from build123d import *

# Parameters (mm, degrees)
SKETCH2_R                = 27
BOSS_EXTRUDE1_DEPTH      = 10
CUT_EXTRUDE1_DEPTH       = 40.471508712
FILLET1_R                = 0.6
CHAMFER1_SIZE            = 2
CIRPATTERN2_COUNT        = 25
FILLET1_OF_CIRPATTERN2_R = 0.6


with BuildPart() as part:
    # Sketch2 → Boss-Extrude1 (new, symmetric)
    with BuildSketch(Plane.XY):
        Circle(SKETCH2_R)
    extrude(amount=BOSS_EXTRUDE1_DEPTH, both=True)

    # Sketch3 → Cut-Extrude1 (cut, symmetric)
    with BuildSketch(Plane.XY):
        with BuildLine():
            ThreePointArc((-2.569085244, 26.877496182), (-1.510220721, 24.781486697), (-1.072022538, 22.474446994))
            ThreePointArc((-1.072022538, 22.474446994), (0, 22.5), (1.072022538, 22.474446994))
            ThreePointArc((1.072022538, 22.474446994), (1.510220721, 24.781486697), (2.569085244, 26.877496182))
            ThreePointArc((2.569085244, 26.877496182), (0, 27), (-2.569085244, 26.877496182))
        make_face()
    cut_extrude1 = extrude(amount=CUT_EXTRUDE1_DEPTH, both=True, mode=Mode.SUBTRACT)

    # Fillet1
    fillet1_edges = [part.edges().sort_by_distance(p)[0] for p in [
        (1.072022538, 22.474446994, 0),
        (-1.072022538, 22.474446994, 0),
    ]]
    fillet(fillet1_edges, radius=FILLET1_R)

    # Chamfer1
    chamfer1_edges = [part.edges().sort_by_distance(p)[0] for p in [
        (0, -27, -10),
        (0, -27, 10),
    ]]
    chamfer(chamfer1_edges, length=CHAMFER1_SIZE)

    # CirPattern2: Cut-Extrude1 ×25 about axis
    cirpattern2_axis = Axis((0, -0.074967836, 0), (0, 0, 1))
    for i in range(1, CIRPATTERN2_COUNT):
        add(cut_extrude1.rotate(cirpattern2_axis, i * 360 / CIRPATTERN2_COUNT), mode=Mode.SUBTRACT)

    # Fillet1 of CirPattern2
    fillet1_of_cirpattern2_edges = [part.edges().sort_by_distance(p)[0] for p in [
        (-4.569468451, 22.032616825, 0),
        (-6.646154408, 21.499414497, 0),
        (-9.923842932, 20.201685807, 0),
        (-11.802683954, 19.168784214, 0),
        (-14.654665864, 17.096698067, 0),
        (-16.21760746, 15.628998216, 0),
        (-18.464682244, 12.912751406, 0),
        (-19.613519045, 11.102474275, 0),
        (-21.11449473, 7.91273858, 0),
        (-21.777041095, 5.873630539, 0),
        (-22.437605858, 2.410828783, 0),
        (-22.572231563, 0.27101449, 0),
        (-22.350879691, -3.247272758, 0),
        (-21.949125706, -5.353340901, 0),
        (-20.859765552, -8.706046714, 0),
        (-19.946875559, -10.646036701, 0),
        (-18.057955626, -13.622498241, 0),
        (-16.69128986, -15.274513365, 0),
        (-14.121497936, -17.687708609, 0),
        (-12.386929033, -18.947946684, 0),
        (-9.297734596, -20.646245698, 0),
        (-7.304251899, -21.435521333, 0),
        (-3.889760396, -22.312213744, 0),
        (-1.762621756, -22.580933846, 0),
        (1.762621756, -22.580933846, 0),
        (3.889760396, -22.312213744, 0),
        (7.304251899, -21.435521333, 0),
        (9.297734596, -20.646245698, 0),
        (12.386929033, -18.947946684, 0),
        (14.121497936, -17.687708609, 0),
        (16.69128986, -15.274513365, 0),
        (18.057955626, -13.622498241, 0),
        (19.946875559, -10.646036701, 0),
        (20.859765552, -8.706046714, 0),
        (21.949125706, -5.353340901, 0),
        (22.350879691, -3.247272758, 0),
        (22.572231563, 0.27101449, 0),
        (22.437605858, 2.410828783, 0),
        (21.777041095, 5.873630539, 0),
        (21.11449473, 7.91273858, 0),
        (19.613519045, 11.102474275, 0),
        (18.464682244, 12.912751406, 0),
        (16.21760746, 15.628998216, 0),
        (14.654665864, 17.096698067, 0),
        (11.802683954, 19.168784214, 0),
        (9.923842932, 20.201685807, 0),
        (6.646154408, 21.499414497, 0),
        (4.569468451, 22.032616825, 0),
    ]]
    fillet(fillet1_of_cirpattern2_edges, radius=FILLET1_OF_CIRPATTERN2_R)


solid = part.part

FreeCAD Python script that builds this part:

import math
import FreeCAD as App
import Part
import Sketcher
Q = App.Units.Quantity


def edges_at(feature, points):
    """Names of the edges that pass closest to the given points."""
    edges = feature.Shape.Edges
    near = lambda p: min(range(len(edges)), key=lambda i: edges[i].distToShape(Part.Vertex(*p))[0])
    return sorted({f"Edge{near(p) + 1}" for p in points})

doc = App.newDocument("Part")
body = doc.addObject("PartDesign::Body", "Body")

sketch1 = doc.addObject("Sketcher::SketchObject", "Sketch")
body.addObject(sketch1)
sketch1.AttachmentSupport = (doc.XY_Plane, [""])
sketch1.MapMode = "FlatFace"
sketch1.addGeometry(Part.Circle(App.Vector(0, 0, 0), App.Vector(0, 0, 1), 27), False)
sketch1.addConstraint(Sketcher.Constraint("Coincident", 0, 3, -1, 1))
sketch1.addConstraint(Sketcher.Constraint("Diameter", 0, Q("54 mm")))
pad1 = doc.addObject("PartDesign::Pad", "Pad")
body.addObject(pad1)
pad1.Profile = sketch1
pad1.Length = 20
pad1.Midplane = True

sketch2 = doc.addObject("Sketcher::SketchObject", "Sketch001")
body.addObject(sketch2)
sketch2.AttachmentSupport = (doc.XY_Plane, [""])
sketch2.MapMode = "FlatFace"
sketch2.addGeometry(Part.ArcOfCircle(Part.Circle(App.Vector(-9.47427, 22.073663, 0), App.Vector(0, 0, 1), 8.4118), math.radians(2.730917), math.radians(34.825756)), False)
sketch2.addGeometry(Part.ArcOfCircle(Part.Circle(App.Vector(0, 0, 0), App.Vector(0, 0, 1), 22.5), math.radians(87.269083), math.radians(92.730917)), False)
sketch2.addGeometry(Part.ArcOfCircle(Part.Circle(App.Vector(9.47427, 22.073663, 0), App.Vector(0, 0, 1), 8.4118), math.radians(145.174244), math.radians(177.269083)), False)
sketch2.addGeometry(Part.ArcOfCircle(Part.Circle(App.Vector(0, 0, 0), App.Vector(0, 0, 1), 27), math.radians(84.539972), math.radians(95.460028)), False)
sketch2.addConstraint(Sketcher.Constraint("Coincident", 0, 1, 1, 2))
sketch2.addConstraint(Sketcher.Constraint("Coincident", 1, 1, 2, 2))
sketch2.addConstraint(Sketcher.Constraint("Coincident", 2, 1, 3, 1))
sketch2.addConstraint(Sketcher.Constraint("Coincident", 3, 2, 0, 2))
sketch2.addConstraint(Sketcher.Constraint("Coincident", 1, 3, -1, 1))
sketch2.addConstraint(Sketcher.Constraint("Coincident", 3, 3, -1, 1))
sketch2.addConstraint(Sketcher.Constraint("Equal", 0, 2))
sketch2.addConstraint(Sketcher.Constraint("Symmetric", 0, 3, 2, 3, -2))
sketch2.addConstraint(Sketcher.Constraint("Radius", 3, Q("27 mm")))
sketch2.addConstraint(Sketcher.Constraint("Radius", 1, Q("22.5 mm")))
sketch2.addConstraint(Sketcher.Constraint("Radius", 0, Q("8.4118 mm")))
sketch2.addConstraint(Sketcher.Constraint("DistanceX", 0, 3, -1, 1, Q("9.47427 mm")))
sketch2.addConstraint(Sketcher.Constraint("DistanceY", 1, 1, 2, 1, Q("4.403049 mm")))
pocket1 = doc.addObject("PartDesign::Pocket", "Pocket")
body.addObject(pocket1)
pocket1.Profile = sketch2
pocket1.Length = 80.943017
pocket1.Midplane = True
doc.recompute()

fillet = doc.addObject("PartDesign::Fillet", "Fillet")
body.addObject(fillet)
fillet.Base = (pocket1, edges_at(pocket1, [(1.072, 22.474, 0), (-1.072, 22.474, 0)]))
fillet.Radius = 0.6
doc.recompute()

chamfer = doc.addObject("PartDesign::Chamfer", "Chamfer")
body.addObject(chamfer)
chamfer.Base = (fillet, edges_at(fillet, [(0, -27, -10), (0, -27, 10)]))
chamfer.Size = 2
doc.recompute()

datumline = doc.addObject("PartDesign::Line", "DatumLine")
body.addObject(datumline)
datumline.Placement = App.Placement(App.Vector(0, -0.074968, 0), App.Rotation(App.Vector(0, 0, 1), App.Vector(0, 0, 1)))
polarpattern = doc.addObject("PartDesign::PolarPattern", "PolarPattern")
body.addObject(polarpattern)
polarpattern.Originals = [pocket1]
polarpattern.Axis = (datumline, [""])
polarpattern.Angle = 360
polarpattern.Occurrences = 25
body.Tip = polarpattern
doc.recompute()

fillet2 = doc.addObject("PartDesign::Fillet", "Fillet001")
body.addObject(fillet2)
fillet2.Base = (polarpattern, edges_at(polarpattern, [
    (-4.569, 22.033, 0),
    (-6.646, 21.499, 0),
    (-9.924, 20.202, 0),
    (-11.803, 19.169, 0),
    (-14.655, 17.097, 0),
    (-16.218, 15.629, 0),
    (-18.465, 12.913, 0),
    (-19.614, 11.102, 0),
    (-21.114, 7.913, 0),
    (-21.777, 5.874, 0),
    (-22.438, 2.411, 0),
    (-22.572, 0.271, 0),
    (-22.351, -3.247, 0),
    (-21.949, -5.353, 0),
    (-20.86, -8.706, 0),
    (-19.947, -10.646, 0),
    (-18.058, -13.622, 0),
    (-16.691, -15.275, 0),
    (-14.121, -17.688, 0),
    (-12.387, -18.948, 0),
    (-9.298, -20.646, 0),
    (-7.304, -21.436, 0),
    (-3.89, -22.312, 0),
    (-1.763, -22.581, 0),
    (1.763, -22.581, 0),
    (3.89, -22.312, 0),
    (7.304, -21.436, 0),
    (9.298, -20.646, 0),
    (12.387, -18.948, 0),
    (14.121, -17.688, 0),
    (16.691, -15.275, 0),
    (18.058, -13.622, 0),
    (19.947, -10.646, 0),
    (20.86, -8.706, 0),
    (21.949, -5.353, 0),
    (22.351, -3.247, 0),
    (22.572, 0.271, 0),
    (22.438, 2.411, 0),
    (21.777, 5.874, 0),
    (21.114, 7.913, 0),
    (19.614, 11.102, 0),
    (18.465, 12.913, 0),
    (16.218, 15.629, 0),
    (14.655, 17.097, 0),
    (11.803, 19.169, 0),
    (9.924, 20.202, 0),
    (6.646, 21.499, 0),
    (4.569, 22.033, 0),
]))
fillet2.Radius = 0.6

doc.recompute()
